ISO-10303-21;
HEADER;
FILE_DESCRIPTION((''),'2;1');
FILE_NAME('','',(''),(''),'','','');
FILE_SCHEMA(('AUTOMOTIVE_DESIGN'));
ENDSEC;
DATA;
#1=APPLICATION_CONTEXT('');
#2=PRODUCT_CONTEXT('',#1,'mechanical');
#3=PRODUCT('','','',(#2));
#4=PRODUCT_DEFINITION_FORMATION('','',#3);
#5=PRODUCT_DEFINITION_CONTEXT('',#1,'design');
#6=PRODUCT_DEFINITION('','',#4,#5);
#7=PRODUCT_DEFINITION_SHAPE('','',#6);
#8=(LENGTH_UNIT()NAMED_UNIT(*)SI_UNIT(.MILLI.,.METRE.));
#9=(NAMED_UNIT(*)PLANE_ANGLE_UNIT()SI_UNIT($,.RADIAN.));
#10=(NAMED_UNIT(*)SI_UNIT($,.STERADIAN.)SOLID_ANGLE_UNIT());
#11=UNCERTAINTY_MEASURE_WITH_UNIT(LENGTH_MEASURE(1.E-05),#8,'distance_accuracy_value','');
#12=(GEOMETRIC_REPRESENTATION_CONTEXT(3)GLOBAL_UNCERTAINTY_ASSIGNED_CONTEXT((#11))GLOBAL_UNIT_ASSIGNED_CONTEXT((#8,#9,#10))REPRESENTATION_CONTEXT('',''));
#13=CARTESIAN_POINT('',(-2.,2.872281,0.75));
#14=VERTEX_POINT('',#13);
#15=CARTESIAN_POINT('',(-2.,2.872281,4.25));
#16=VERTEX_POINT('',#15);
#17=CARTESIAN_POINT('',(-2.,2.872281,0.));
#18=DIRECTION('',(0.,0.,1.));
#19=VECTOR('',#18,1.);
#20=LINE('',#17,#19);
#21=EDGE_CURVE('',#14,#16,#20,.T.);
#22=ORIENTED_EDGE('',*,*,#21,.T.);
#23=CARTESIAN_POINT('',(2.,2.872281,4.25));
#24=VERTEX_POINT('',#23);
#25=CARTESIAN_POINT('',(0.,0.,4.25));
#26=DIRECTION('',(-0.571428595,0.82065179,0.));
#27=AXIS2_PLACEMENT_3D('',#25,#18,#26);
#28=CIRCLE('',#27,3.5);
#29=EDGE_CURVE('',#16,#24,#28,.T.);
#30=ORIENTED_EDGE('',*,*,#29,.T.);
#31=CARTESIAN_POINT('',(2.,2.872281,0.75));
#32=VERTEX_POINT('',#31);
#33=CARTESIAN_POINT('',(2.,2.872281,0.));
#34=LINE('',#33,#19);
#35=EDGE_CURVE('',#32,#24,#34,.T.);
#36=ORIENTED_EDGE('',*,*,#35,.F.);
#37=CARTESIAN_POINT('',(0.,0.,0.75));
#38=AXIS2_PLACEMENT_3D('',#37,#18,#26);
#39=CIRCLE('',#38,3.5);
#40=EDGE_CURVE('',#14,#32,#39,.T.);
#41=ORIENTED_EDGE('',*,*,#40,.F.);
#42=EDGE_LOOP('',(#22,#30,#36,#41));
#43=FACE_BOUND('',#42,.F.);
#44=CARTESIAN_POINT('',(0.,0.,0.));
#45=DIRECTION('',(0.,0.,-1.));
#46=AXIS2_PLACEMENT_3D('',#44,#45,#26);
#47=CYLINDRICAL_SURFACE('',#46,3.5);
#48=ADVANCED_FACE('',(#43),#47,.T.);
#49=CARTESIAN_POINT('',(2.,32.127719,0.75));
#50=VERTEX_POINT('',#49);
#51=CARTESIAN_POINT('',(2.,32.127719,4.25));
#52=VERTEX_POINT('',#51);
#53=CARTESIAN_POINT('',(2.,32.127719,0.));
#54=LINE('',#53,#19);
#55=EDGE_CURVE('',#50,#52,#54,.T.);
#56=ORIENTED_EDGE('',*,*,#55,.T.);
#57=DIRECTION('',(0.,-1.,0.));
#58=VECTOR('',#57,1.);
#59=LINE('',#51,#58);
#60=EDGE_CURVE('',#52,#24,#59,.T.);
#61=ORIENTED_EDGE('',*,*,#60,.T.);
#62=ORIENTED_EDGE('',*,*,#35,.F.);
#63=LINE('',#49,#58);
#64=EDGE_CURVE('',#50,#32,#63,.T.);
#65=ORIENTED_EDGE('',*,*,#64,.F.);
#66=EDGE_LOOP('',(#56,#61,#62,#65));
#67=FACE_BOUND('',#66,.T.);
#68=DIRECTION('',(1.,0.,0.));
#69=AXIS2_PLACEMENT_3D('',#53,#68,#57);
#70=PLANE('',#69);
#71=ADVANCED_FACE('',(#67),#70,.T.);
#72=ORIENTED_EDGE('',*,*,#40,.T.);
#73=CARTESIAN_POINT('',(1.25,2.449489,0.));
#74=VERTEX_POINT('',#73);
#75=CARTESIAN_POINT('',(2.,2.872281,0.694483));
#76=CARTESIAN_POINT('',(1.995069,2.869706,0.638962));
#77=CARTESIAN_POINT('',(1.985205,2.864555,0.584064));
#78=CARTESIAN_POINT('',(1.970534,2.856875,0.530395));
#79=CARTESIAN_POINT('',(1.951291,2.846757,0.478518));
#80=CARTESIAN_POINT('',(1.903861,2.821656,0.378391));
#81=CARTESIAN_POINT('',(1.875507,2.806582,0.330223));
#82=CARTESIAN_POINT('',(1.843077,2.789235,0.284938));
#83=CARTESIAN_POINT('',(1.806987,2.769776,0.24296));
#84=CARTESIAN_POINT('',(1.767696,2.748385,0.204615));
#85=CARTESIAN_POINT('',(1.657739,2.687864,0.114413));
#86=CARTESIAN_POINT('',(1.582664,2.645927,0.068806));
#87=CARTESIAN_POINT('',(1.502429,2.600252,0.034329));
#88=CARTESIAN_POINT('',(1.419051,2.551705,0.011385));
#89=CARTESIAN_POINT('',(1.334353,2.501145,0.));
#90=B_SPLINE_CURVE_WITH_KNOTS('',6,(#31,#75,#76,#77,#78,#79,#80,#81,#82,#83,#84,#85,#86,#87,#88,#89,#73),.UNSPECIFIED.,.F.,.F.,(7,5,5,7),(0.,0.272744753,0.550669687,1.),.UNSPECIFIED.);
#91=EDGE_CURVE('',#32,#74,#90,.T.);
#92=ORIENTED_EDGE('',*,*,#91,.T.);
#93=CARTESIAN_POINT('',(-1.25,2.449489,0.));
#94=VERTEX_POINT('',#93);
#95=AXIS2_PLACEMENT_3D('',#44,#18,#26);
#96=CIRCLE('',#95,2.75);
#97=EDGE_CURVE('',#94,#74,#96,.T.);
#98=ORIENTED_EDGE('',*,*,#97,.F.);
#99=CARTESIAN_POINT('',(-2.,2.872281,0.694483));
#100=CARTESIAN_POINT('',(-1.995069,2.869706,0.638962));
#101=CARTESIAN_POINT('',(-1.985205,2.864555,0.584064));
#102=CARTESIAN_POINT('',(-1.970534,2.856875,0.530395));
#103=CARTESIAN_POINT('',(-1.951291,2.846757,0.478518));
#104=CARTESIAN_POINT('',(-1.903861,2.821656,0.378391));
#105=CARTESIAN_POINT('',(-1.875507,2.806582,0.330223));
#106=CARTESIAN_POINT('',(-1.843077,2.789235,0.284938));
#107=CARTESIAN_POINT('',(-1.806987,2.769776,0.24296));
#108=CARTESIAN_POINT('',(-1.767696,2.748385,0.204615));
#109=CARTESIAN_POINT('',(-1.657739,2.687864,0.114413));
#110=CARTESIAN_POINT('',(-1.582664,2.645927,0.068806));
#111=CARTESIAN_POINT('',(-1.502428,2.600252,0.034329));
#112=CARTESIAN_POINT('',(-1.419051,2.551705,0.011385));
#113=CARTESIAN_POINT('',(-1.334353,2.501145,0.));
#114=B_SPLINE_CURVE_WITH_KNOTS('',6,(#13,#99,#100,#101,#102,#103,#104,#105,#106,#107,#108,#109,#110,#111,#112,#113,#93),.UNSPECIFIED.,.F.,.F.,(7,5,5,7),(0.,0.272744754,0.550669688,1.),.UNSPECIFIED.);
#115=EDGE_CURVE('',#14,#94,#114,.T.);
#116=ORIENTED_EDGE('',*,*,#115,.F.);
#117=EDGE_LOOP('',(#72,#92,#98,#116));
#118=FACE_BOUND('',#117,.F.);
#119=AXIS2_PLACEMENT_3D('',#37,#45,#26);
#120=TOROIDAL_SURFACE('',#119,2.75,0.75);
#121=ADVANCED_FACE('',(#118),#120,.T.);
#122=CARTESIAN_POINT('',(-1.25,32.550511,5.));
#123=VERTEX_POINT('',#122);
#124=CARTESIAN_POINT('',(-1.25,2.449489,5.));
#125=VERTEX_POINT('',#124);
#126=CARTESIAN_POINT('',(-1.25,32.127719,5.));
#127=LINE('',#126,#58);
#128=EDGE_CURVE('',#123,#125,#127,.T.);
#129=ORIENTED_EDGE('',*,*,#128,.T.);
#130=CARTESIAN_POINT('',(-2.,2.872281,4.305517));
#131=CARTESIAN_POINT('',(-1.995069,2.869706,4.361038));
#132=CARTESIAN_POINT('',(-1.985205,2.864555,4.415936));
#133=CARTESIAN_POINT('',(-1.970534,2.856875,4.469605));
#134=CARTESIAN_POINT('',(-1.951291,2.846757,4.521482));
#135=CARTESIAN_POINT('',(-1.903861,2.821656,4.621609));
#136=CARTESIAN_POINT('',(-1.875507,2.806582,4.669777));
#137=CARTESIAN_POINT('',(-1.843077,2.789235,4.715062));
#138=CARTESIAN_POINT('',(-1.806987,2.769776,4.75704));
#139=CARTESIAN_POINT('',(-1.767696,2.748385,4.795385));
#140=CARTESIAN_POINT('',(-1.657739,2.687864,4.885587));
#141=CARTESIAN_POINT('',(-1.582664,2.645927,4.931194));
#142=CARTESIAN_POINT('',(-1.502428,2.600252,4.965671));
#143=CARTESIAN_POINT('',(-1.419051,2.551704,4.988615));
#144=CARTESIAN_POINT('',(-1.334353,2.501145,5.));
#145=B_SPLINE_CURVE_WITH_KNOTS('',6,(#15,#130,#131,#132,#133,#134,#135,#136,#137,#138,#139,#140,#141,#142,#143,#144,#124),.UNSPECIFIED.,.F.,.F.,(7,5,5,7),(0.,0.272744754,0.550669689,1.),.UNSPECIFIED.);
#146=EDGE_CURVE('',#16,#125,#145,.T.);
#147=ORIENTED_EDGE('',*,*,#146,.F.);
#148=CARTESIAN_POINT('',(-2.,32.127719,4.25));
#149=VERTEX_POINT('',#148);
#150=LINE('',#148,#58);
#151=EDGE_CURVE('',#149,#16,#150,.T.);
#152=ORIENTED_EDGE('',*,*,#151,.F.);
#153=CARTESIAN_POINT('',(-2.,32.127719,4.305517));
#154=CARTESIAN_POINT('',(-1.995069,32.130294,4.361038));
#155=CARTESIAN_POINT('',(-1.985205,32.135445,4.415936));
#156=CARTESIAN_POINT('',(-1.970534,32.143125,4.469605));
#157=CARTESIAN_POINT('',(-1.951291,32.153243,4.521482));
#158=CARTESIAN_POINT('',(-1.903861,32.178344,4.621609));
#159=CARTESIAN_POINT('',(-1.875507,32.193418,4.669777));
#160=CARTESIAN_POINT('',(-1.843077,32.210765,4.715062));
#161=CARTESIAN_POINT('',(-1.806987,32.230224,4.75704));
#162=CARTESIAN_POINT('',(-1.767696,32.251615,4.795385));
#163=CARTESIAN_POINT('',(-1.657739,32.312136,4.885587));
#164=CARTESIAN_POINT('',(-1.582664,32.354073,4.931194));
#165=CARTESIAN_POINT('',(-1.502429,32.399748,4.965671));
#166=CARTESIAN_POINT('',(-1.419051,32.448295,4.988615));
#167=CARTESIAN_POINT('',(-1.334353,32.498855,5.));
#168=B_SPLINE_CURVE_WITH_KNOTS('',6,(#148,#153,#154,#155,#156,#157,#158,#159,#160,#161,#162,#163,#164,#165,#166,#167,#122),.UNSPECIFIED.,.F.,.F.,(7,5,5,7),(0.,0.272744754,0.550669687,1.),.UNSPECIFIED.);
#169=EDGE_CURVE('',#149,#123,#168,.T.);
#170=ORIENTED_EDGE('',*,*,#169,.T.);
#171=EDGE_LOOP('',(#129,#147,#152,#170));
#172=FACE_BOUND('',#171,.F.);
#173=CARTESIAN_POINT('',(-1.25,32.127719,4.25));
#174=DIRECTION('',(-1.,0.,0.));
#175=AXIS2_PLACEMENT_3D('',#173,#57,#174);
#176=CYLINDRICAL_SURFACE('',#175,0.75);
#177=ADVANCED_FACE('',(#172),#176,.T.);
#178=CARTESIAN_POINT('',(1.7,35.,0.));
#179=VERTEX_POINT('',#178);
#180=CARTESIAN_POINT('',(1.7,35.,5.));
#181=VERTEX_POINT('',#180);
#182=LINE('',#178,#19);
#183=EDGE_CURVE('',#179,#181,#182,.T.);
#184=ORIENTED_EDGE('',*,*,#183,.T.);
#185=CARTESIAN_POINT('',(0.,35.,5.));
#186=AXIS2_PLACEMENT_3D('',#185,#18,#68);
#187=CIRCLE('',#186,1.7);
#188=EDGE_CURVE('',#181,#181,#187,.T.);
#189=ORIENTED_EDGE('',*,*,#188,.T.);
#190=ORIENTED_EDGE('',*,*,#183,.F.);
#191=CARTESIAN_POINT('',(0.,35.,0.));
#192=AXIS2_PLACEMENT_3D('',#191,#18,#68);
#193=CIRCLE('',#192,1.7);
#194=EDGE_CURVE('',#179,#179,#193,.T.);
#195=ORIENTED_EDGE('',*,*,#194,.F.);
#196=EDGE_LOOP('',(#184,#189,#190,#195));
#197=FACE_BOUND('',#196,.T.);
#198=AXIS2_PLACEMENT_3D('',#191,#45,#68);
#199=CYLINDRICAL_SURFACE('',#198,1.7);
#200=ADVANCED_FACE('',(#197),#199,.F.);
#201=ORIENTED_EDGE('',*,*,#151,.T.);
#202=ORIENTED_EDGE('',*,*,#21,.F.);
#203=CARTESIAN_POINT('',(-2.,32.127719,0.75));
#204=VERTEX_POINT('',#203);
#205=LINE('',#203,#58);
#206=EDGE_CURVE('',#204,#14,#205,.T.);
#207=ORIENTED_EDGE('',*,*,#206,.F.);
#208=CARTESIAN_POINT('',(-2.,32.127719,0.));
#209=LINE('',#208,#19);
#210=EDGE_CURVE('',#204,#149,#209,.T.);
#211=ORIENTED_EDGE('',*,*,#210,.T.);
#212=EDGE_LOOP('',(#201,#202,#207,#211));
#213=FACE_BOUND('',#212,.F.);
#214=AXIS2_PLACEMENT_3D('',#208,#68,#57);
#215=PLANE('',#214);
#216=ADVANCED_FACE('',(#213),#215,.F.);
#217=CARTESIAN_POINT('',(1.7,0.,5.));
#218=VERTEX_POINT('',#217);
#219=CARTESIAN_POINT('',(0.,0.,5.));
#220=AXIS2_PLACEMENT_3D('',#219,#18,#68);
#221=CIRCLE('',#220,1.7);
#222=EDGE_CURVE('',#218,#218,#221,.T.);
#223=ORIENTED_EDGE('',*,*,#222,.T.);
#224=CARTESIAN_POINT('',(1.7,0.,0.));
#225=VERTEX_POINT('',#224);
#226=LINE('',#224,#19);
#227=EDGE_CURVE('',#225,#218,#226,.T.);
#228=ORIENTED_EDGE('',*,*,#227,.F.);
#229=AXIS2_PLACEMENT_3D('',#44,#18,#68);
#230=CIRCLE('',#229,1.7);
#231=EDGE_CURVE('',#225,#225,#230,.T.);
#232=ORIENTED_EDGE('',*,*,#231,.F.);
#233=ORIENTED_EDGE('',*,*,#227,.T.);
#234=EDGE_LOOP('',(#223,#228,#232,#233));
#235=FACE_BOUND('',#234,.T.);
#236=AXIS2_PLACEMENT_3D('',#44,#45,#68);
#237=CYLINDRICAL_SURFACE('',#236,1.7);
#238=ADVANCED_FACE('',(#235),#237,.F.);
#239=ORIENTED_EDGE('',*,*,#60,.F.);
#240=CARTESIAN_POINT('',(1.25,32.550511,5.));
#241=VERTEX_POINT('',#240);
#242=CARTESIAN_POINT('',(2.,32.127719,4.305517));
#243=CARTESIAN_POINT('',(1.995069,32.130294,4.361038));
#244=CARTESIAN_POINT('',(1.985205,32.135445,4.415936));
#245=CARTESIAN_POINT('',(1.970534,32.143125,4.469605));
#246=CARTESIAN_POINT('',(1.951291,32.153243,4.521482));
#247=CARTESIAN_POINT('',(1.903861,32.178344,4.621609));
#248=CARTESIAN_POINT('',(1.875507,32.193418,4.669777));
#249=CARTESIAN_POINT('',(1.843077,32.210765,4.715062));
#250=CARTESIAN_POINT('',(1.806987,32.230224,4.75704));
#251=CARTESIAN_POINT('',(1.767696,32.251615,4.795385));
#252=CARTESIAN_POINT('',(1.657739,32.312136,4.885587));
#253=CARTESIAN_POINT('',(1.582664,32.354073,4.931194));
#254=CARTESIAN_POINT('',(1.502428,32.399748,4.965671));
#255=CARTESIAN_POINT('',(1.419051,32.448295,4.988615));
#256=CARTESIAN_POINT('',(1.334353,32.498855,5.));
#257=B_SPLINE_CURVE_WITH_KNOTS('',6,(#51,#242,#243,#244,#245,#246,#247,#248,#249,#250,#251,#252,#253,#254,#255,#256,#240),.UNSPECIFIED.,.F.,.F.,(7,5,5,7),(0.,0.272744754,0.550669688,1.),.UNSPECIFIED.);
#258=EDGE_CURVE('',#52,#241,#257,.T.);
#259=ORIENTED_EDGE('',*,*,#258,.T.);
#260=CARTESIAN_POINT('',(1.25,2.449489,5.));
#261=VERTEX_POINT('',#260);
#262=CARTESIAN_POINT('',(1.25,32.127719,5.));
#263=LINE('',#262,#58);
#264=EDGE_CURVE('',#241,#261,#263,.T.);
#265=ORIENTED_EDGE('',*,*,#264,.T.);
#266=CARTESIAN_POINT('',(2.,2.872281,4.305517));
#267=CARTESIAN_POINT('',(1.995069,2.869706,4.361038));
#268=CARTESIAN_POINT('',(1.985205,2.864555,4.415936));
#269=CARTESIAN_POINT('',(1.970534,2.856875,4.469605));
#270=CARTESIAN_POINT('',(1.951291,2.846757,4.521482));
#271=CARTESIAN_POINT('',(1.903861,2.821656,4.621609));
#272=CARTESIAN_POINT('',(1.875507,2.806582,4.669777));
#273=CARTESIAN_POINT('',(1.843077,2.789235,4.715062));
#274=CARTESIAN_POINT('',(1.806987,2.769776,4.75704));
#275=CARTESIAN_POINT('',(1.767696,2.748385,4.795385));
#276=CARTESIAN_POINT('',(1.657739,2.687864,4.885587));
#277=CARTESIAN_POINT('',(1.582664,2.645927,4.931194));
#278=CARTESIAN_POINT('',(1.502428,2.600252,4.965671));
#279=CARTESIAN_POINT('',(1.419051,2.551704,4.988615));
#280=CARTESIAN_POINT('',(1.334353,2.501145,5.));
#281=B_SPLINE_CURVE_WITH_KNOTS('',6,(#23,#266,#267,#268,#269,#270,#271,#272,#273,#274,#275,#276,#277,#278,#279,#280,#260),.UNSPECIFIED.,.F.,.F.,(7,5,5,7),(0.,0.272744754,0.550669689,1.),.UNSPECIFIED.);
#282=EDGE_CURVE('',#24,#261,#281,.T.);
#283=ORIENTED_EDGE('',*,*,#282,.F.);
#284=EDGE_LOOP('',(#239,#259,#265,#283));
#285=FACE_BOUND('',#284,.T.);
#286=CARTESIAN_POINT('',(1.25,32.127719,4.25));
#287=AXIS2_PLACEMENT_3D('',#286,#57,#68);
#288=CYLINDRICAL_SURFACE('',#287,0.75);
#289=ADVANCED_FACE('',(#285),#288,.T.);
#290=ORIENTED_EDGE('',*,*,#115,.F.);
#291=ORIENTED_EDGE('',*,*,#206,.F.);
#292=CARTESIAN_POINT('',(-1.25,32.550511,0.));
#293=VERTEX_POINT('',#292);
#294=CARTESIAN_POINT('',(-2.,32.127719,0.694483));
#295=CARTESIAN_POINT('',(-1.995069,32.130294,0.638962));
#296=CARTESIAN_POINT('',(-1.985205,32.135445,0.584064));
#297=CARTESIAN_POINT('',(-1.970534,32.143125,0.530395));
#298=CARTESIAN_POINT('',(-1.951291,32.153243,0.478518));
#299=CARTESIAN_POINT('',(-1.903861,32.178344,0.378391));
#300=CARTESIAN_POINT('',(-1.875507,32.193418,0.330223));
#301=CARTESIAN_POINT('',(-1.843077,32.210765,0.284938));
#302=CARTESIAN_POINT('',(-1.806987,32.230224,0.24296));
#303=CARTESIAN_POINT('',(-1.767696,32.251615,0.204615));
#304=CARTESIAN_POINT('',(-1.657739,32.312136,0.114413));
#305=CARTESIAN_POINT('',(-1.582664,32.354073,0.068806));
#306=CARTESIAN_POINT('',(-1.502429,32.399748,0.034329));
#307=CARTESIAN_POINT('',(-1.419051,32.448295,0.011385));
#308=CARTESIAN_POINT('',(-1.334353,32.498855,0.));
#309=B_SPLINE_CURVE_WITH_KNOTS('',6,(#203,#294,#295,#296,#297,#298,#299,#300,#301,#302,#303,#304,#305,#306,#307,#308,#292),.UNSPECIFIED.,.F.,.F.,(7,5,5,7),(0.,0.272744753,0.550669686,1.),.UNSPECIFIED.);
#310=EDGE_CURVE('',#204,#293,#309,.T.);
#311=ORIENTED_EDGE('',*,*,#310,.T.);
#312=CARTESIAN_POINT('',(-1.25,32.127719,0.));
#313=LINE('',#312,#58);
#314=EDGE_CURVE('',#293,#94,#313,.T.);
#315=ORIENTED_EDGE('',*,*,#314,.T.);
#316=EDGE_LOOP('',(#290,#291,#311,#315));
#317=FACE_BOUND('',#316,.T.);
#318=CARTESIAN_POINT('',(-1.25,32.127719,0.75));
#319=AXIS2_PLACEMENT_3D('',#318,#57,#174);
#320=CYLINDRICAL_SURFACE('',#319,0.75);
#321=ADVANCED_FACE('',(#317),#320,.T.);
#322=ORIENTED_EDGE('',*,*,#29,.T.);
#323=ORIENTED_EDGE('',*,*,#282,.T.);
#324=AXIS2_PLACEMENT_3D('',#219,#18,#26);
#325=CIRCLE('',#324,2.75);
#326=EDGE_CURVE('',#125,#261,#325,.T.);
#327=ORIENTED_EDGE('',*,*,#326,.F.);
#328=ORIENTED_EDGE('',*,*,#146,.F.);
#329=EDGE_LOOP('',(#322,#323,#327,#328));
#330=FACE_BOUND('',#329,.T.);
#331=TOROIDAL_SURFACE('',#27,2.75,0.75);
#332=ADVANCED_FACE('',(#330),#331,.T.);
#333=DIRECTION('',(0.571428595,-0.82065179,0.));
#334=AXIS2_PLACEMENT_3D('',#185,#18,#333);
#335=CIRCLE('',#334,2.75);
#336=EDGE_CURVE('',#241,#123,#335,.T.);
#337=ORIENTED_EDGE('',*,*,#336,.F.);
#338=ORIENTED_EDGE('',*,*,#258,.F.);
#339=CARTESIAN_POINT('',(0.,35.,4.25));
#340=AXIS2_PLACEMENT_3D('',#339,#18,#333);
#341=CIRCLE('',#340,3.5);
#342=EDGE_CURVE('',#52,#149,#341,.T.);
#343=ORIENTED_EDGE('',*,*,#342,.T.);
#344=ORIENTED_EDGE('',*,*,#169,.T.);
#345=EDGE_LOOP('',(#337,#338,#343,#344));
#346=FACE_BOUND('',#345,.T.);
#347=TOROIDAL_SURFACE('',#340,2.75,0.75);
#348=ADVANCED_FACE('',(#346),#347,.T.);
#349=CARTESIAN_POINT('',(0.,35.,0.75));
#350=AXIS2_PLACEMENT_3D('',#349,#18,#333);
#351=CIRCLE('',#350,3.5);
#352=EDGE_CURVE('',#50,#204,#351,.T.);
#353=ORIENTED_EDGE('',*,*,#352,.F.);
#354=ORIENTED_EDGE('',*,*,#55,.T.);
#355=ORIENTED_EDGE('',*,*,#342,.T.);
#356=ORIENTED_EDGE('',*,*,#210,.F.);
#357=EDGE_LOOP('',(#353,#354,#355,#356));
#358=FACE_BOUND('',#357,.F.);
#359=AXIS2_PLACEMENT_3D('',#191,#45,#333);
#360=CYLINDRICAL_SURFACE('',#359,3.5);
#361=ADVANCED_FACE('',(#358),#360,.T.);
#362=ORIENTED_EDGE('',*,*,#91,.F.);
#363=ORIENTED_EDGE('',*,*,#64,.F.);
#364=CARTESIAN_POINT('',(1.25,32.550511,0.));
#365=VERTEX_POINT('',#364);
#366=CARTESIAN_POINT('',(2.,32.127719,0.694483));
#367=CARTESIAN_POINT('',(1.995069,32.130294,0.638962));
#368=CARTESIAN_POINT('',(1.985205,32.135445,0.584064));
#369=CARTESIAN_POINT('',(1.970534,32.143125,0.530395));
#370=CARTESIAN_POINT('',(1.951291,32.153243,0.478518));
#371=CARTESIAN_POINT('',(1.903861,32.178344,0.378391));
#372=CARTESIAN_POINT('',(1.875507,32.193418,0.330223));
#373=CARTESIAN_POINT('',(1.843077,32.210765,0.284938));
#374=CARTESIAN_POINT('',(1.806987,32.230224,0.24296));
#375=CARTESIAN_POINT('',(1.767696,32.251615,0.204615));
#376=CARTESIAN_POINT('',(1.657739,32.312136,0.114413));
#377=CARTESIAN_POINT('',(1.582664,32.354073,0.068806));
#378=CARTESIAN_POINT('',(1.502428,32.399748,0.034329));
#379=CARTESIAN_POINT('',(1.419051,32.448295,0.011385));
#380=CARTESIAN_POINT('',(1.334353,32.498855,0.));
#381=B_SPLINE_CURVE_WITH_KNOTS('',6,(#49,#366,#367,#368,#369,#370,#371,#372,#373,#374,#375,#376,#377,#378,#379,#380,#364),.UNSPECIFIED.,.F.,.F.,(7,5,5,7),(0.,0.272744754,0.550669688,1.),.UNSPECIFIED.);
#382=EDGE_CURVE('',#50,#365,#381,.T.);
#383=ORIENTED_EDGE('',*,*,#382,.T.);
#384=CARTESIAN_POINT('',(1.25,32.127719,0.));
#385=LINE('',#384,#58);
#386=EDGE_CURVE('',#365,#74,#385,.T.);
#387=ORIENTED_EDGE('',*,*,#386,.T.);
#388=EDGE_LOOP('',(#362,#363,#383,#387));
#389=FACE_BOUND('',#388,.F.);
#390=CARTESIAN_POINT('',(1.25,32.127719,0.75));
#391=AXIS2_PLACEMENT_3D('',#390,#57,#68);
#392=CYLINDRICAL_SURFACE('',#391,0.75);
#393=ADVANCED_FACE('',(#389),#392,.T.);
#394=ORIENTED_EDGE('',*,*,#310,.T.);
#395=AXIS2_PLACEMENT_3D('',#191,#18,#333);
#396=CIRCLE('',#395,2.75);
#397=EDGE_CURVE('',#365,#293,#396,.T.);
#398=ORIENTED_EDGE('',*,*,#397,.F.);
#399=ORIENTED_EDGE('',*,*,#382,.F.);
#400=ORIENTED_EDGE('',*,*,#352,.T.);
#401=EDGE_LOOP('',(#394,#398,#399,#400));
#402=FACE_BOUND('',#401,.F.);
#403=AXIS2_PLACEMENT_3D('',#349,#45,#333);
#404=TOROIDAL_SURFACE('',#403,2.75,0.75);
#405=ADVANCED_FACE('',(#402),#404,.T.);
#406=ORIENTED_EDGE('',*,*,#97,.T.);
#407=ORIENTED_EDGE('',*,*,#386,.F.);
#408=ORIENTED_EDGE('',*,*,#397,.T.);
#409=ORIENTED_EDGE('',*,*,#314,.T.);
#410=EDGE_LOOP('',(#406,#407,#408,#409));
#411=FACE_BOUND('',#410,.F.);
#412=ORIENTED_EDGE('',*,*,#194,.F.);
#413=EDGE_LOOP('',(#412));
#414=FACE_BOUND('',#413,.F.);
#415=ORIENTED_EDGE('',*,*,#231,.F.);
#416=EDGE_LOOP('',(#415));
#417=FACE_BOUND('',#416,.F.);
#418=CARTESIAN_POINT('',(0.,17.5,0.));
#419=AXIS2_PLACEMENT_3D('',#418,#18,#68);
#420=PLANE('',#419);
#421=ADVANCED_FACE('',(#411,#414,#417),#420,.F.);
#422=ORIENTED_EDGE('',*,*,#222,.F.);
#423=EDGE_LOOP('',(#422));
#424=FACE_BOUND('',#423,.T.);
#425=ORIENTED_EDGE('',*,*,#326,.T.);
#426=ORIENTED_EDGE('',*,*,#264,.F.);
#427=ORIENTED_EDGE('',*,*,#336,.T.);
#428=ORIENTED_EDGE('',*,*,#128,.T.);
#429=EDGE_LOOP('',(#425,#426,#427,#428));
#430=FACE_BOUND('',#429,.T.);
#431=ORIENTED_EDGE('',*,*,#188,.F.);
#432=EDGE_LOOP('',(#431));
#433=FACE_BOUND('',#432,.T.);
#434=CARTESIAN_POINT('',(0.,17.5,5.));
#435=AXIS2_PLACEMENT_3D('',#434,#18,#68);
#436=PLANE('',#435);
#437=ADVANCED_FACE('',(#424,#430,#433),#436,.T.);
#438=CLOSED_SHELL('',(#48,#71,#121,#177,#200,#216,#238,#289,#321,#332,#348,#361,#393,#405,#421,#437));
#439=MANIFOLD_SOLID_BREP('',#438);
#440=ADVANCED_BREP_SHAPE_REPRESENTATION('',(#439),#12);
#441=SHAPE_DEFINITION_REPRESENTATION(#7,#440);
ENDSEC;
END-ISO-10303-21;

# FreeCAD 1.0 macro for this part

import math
import FreeCAD as App
import Part
import Sketcher


def edges_at(feature, points):
    """Names of the edges that pass closest to the given points."""
    edges = feature.Shape.Edges
    near = lambda p: min(range(len(edges)), key=lambda i: edges[i].distToShape(Part.Vertex(*p))[0])
    return sorted({f"Edge{near(p) + 1}" for p in points})

doc = App.newDocument("Part")
body = doc.addObject("PartDesign::Body", "Body")

# Sketch on XY plane
sketch1 = body.newObject("Sketcher::SketchObject", "Sketch")
sketch1.AttachmentSupport = (doc.getObject("XY_Plane"), [""])
sketch1.MapMode = "FlatFace"
sketch1.addGeometry(Part.ArcOfCircle(Part.Circle(App.Vector(0, 35, 0), App.Vector(0, 0, 1), 3.5), math.radians(-55), math.radians(235)), False)
sketch1.addGeometry(Part.LineSegment(App.Vector(-2, 32.1, 0), App.Vector(-2, 2.9, 0)), False)
sketch1.addGeometry(Part.ArcOfCircle(Part.Circle(App.Vector(0, 0, 0), App.Vector(0, 0, 1), 3.5), math.radians(125), math.radians(415)), False)
sketch1.addGeometry(Part.LineSegment(App.Vector(2, 2.9, 0), App.Vector(2, 32.1, 0)), False)
sketch1.addGeometry(Part.Circle(App.Vector(0, 0, 0), App.Vector(0, 0, 1), 1.7), False)
sketch1.addGeometry(Part.Circle(App.Vector(0, 35, 0), App.Vector(0, 0, 1), 1.7), False)
sketch1.addConstraint(Sketcher.Constraint("Coincident", 0, 2, 1, 1))
sketch1.addConstraint(Sketcher.Constraint("Coincident", 1, 2, 2, 1))
sketch1.addConstraint(Sketcher.Constraint("Coincident", 2, 2, 3, 1))
sketch1.addConstraint(Sketcher.Constraint("Coincident", 3, 2, 0, 1))
sketch1.addConstraint(Sketcher.Constraint("Vertical", 1))
sketch1.addConstraint(Sketcher.Constraint("Vertical", 3))
sketch1.addConstraint(Sketcher.Constraint("Coincident", 2, 3, -1, 1))
sketch1.addConstraint(Sketcher.Constraint("Coincident", 4, 3, -1, 1))
sketch1.addConstraint(Sketcher.Constraint("Coincident", 5, 3, 0, 3))
sketch1.addConstraint(Sketcher.Constraint("Equal", 0, 2))
sketch1.addConstraint(Sketcher.Constraint("Equal", 4, 5))
sketch1.addConstraint(Sketcher.Constraint("Symmetric", 0, 2, 3, 2, -2))
sketch1.addConstraint(Sketcher.Constraint("Diameter", 4, 3.4))
sketch1.addConstraint(Sketcher.Constraint("Radius", 0, 3.5))
sketch1.addConstraint(Sketcher.Constraint("DistanceY", -1, 1, 0, 3, 35.0))
sketch1.addConstraint(Sketcher.Constraint("DistanceX", 0, 2, -1, 1, 2.0))
pad1 = body.newObject("PartDesign::Pad", "Pad")
pad1.Profile = sketch1
pad1.Length = 5
doc.recompute()

fillet = body.newObject("PartDesign::Fillet", "Fillet")
fillet.Base = (pad1, edges_at(pad1, [
    (0, -3.5, 5),
    (0, -3.5, 0),
    (2, 17.5, 5),
    (2, 17.5, 0),
    (-2, 17.5, 5),
    (0, 38.5, 5),
    (0, 38.5, 0),
    (-2, 17.5, 0),
]))
fillet.Radius = 0.75

doc.recompute()
